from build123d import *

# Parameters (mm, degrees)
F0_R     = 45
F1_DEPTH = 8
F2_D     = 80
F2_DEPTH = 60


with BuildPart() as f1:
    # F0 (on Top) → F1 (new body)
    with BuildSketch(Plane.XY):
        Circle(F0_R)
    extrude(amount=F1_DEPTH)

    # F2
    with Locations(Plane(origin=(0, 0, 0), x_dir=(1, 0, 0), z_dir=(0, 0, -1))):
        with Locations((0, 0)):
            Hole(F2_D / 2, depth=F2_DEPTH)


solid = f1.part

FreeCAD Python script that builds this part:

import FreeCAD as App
import Part
import Sketcher

V = App.Vector

doc = App.newDocument("Part")
params = doc.addObject("Spreadsheet::Sheet", "Params")
for row, (alias, value) in enumerate([
    ("sketch1_diameter", "90 mm"),
    ("pad1_length", "8 mm"),
    ("sketch2_diameter", "80 mm"),
    ("hole_diameter", "80 mm"),
    ("hole_depth", "60 mm"),
], start=1):
    params.set(f"A{row}", alias)
    params.set(f"B{row}", "=" + value)
    params.setAlias(f"B{row}", alias)

body = doc.addObject("PartDesign::Body", "Body")

sketch1 = body.newObject("Sketcher::SketchObject", "Sketch")
sketch1.AttachmentSupport = (doc.getObject("XY_Plane"), [""])
sketch1.MapMode = "FlatFace"
sketch1.addGeometry(Part.Circle(V(0, 0, 0), V(0, 0, 1), 45), False)
sketch1.addConstraint([
    Sketcher.Constraint("Coincident", 0, 3, -1, 1),
    Sketcher.Constraint("Diameter", 0, 90.0),
])
sketch1.setExpression("Constraints[1]", "Params.sketch1_diameter")
pad1 = body.newObject("PartDesign::Pad", "Pad")
pad1.Profile = sketch1
pad1.setExpression("Length", "Params.pad1_length")

sketch2 = body.newObject("Sketcher::SketchObject", "Sketch001")
sketch2.AttachmentSupport = (doc.getObject("XY_Plane"), [""])
sketch2.MapMode = "FlatFace"
sketch2.addGeometry(Part.Circle(V(0, 0, 0), V(0, 0, 1), 40), False)
sketch2.addConstraint([
    Sketcher.Constraint("Coincident", 0, 3, -1, 1),
    Sketcher.Constraint("Diameter", 0, 80.0),
])
sketch2.setExpression("Constraints[1]", "Params.sketch2_diameter")
doc.recompute()
hole = body.newObject("PartDesign::Hole", "Hole")
hole.Profile = sketch2
hole.ThreadType = "None"
hole.setExpression("Diameter", "Params.hole_diameter")
hole.DepthType = "Dimension"
hole.setExpression("Depth", "Params.hole_depth")
hole.DrillPoint = "Flat"
hole.Reversed = True

doc.recompute()
